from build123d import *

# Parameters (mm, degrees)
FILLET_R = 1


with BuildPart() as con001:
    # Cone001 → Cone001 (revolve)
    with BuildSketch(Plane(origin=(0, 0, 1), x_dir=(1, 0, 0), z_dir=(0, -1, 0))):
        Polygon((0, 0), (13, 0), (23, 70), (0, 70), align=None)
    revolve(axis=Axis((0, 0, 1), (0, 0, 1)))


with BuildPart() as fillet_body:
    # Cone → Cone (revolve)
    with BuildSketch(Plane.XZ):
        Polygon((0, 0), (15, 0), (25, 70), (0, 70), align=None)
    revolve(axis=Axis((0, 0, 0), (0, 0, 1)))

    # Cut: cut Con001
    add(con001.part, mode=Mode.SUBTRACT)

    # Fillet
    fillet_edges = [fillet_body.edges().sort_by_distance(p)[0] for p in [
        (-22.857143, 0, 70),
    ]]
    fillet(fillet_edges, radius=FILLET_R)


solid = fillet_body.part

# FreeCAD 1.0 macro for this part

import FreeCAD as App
import Part
import Sketcher

V = App.Vector
Q = App.Units.Quantity


def edges_at(feature, points):
    """Names of the edges that pass closest to the given points."""
    edges = feature.Shape.Edges
    near = lambda p: min(range(len(edges)), key=lambda i: edges[i].distToShape(Part.Vertex(*p))[0])
    return sorted({f"Edge{near(p) + 1}" for p in points})


def add_polygon(sketch, points):
    """Adds a closed chain of lines whose ends are joined by coincident constraints."""
    first, n = sketch.GeometryCount, len(points)
    for a, b in zip(points, points[1:] + points[:1]):
        sketch.addGeometry(Part.LineSegment(App.Vector(*a, 0), App.Vector(*b, 0)), False)
    for i in range(n):
        sketch.addConstraint(Sketcher.Constraint("Coincident", first + i, 2, first + (i + 1) % n, 1))

doc = App.newDocument("Part")
params = doc.addObject("Spreadsheet::Sheet", "Params")
for row, (alias, value) in enumerate([
    ("sketch1_width", "13 mm"),
    ("sketch1_width2", "23 mm"),
    ("sketch1_height", "70 mm"),
    ("revolution_angle", "360 deg"),
    ("sketch2_width", "15 mm"),
    ("sketch2_width2", "25 mm"),
    ("sketch2_height", "70 mm"),
    ("revolution2_angle", "360 deg"),
    ("fillet_radius", "1 mm"),
], start=1):
    params.set(f"A{row}", alias)
    params.set(f"B{row}", "=" + value)
    params.setAlias(f"B{row}", alias)

body = doc.addObject("PartDesign::Body", "Body")

sketch1 = doc.addObject("Sketcher::SketchObject", "Sketch")
body.addObject(sketch1)
sketch1.AttachmentSupport = (doc.XZ_Plane, [""])
sketch1.MapMode = "FlatFace"
add_polygon(sketch1, [(0, 1), (13, 1), (23, 71), (0, 71)])
sketch1.addConstraint([
    Sketcher.Constraint("Horizontal", 0),
    Sketcher.Constraint("Horizontal", 2),
    Sketcher.Constraint("Vertical", 3),
    Sketcher.Constraint("PointOnObject", 2, 2, -2),
    Sketcher.Constraint("DistanceX", 0, 1, 0, 2, Q("13 mm")),
    Sketcher.Constraint("DistanceX", 2, 2, 2, 1, Q("23 mm")),
    Sketcher.Constraint("DistanceY", 3, 2, 3, 1, Q("70 mm")),
    Sketcher.Constraint("DistanceY", -1, 1, 0, 2, Q("1 mm")),
])
sketch1.setExpression("Constraints[8]", "Params.sketch1_width")
sketch1.setExpression("Constraints[9]", "Params.sketch1_width2")
sketch1.setExpression("Constraints[10]", "Params.sketch1_height")
revolution = doc.addObject("PartDesign::Revolution", "Revolution")
body.addObject(revolution)
revolution.Profile = sketch1
revolution.ReferenceAxis = (sketch1, ["V_Axis"])
revolution.setExpression("Angle", "Params.revolution_angle")
body2 = doc.addObject("PartDesign::Body", "Body001")

sketch2 = doc.addObject("Sketcher::SketchObject", "Sketch001")
body2.addObject(sketch2)
sketch2.AttachmentSupport = (doc.getObject("XZ_Plane001"), [""])
sketch2.MapMode = "FlatFace"
add_polygon(sketch2, [(0, 0), (15, 0), (25, 70), (0, 70)])
sketch2.addConstraint([
    Sketcher.Constraint("Horizontal", 0),
    Sketcher.Constraint("Horizontal", 2),
    Sketcher.Constraint("Vertical", 3),
    Sketcher.Constraint("Coincident", 3, 2, -1, 1),
    Sketcher.Constraint("DistanceX", 0, 1, 0, 2, Q("15 mm")),
    Sketcher.Constraint("DistanceX", 2, 2, 2, 1, Q("25 mm")),
    Sketcher.Constraint("DistanceY", 3, 2, 3, 1, Q("70 mm")),
])
sketch2.setExpression("Constraints[8]", "Params.sketch2_width")
sketch2.setExpression("Constraints[9]", "Params.sketch2_width2")
sketch2.setExpression("Constraints[10]", "Params.sketch2_height")
revolution2 = doc.addObject("PartDesign::Revolution", "Revolution001")
body2.addObject(revolution2)
revolution2.Profile = sketch2
revolution2.ReferenceAxis = (sketch2, ["V_Axis"])
revolution2.setExpression("Angle", "Params.revolution2_angle")
doc.recompute()

boolean = doc.addObject("PartDesign::Boolean", "Boolean")
body2.addObject(boolean)
boolean.Type = "Cut"
boolean.addObjects([body])
doc.recompute()

fillet = doc.addObject("PartDesign::Fillet", "Fillet")
body2.addObject(fillet)
fillet.Base = (boolean, edges_at(boolean, [(-22.857, 0, 70)]))
fillet.setExpression("Radius", "Params.fillet_radius")

doc.recompute()
